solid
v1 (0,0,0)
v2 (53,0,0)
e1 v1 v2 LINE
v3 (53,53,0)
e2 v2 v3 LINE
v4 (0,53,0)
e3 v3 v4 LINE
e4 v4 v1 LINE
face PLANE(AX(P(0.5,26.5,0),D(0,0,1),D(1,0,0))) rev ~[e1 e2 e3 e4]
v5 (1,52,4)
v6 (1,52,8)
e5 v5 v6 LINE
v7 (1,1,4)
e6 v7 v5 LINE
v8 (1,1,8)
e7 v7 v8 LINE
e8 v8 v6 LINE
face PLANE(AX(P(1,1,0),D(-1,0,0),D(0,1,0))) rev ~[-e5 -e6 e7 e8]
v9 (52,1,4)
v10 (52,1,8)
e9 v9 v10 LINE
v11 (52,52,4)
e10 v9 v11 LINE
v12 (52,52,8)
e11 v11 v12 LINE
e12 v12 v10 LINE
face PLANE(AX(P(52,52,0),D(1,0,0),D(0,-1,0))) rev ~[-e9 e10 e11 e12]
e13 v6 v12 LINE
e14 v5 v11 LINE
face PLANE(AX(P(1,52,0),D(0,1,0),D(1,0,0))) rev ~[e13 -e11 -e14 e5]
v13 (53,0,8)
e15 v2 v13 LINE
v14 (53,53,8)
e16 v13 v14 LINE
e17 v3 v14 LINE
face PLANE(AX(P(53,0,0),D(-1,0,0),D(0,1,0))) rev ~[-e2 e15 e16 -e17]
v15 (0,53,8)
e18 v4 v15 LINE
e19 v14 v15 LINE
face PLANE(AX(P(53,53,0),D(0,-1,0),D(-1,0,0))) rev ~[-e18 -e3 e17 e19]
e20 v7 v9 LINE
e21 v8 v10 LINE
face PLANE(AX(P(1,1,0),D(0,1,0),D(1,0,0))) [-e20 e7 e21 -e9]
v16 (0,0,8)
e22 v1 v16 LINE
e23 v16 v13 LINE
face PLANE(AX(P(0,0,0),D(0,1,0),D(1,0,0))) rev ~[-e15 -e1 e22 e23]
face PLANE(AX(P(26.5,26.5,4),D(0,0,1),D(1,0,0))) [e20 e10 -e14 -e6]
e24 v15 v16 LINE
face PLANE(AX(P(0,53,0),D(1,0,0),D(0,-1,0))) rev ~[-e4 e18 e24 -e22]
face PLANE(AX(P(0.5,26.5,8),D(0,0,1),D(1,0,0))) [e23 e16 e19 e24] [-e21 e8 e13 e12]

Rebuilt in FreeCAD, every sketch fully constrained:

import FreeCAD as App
import Part
import Sketcher

V = App.Vector

doc = App.newDocument("Part")
body = doc.addObject("PartDesign::Body", "Body")

# Sketch on XY plane
sketch1 = body.newObject("Sketcher::SketchObject", "Sketch")
sketch1.AttachmentSupport = (doc.getObject("XY_Plane"), [""])
sketch1.MapMode = "FlatFace"
sketch1.addGeometry(Part.LineSegment(V(1, 52, 0), V(1, 1, 0)), False)
sketch1.addGeometry(Part.LineSegment(V(1, 1, 0), V(52, 1, 0)), False)
sketch1.addGeometry(Part.LineSegment(V(52, 1, 0), V(52, 52, 0)), False)
sketch1.addGeometry(Part.LineSegment(V(52, 52, 0), V(1, 52, 0)), False)
sketch1.addConstraint(Sketcher.Constraint("Coincident", 0, 2, 1, 1))
sketch1.addConstraint(Sketcher.Constraint("Coincident", 1, 2, 2, 1))
sketch1.addConstraint(Sketcher.Constraint("Coincident", 2, 2, 3, 1))
sketch1.addConstraint(Sketcher.Constraint("Coincident", 3, 2, 0, 1))
sketch1.addConstraint(Sketcher.Constraint("Vertical", 0))
sketch1.addConstraint(Sketcher.Constraint("Horizontal", 1))
sketch1.addConstraint(Sketcher.Constraint("Vertical", 2))
sketch1.addConstraint(Sketcher.Constraint("Horizontal", 3))
sketch1.addConstraint(Sketcher.Constraint("Equal", 3, 0))
sketch1.addConstraint(Sketcher.Constraint("DistanceX", 1, 1, 1, 2, 51.0))
sketch1.addConstraint(Sketcher.Constraint("DistanceX", -1, 1, 0, 2, 1.0))
sketch1.addConstraint(Sketcher.Constraint("DistanceY", -1, 1, 0, 2, 1.0))
pad1 = body.newObject("PartDesign::Pad", "Pad")
pad1.Profile = sketch1
pad1.Length = 4

# Sketch on XY plane
sketch2 = body.newObject("Sketcher::SketchObject", "Sketch001")
sketch2.AttachmentSupport = (doc.getObject("XY_Plane"), [""])
sketch2.MapMode = "FlatFace"
sketch2.addGeometry(Part.LineSegment(V(0, 53, 0), V(0, 0, 0)), False)
sketch2.addGeometry(Part.LineSegment(V(0, 0, 0), V(53, 0, 0)), False)
sketch2.addGeometry(Part.LineSegment(V(53, 0, 0), V(53, 53, 0)), False)
sketch2.addGeometry(Part.LineSegment(V(53, 53, 0), V(0, 53, 0)), False)
sketch2.addGeometry(Part.LineSegment(V(52, 1, 0), V(1, 1, 0)), False)
sketch2.addGeometry(Part.LineSegment(V(1, 1, 0), V(1, 52, 0)), False)
sketch2.addGeometry(Part.LineSegment(V(1, 52, 0), V(52, 52, 0)), False)
sketch2.addGeometry(Part.LineSegment(V(52, 52, 0), V(52, 1, 0)), False)
sketch2.addConstraint(Sketcher.Constraint("Coincident", 0, 2, 1, 1))
sketch2.addConstraint(Sketcher.Constraint("Coincident", 1, 2, 2, 1))
sketch2.addConstraint(Sketcher.Constraint("Coincident", 2, 2, 3, 1))
sketch2.addConstraint(Sketcher.Constraint("Coincident", 3, 2, 0, 1))
sketch2.addConstraint(Sketcher.Constraint("Coincident", 4, 2, 5, 1))
sketch2.addConstraint(Sketcher.Constraint("Coincident", 5, 2, 6, 1))
sketch2.addConstraint(Sketcher.Constraint("Coincident", 6, 2, 7, 1))
sketch2.addConstraint(Sketcher.Constraint("Coincident", 7, 2, 4, 1))
sketch2.addConstraint(Sketcher.Constraint("Vertical", 0))
sketch2.addConstraint(Sketcher.Constraint("Horizontal", 1))
sketch2.addConstraint(Sketcher.Constraint("Vertical", 2))
sketch2.addConstraint(Sketcher.Constraint("Horizontal", 3))
sketch2.addConstraint(Sketcher.Constraint("Horizontal", 4))
sketch2.addConstraint(Sketcher.Constraint("Vertical", 5))
sketch2.addConstraint(Sketcher.Constraint("Horizontal", 6))
sketch2.addConstraint(Sketcher.Constraint("Vertical", 7))
sketch2.addConstraint(Sketcher.Constraint("Coincident", 0, 2, -1, 1))
sketch2.addConstraint(Sketcher.Constraint("Equal", 3, 0))
sketch2.addConstraint(Sketcher.Constraint("Equal", 6, 5))
sketch2.addConstraint(Sketcher.Constraint("DistanceX", 1, 1, 1, 2, 53.0))
sketch2.addConstraint(Sketcher.Constraint("DistanceX", 4, 2, 4, 1, 51.0))
sketch2.addConstraint(Sketcher.Constraint("DistanceX", -1, 1, 4, 2, 1.0))
sketch2.addConstraint(Sketcher.Constraint("DistanceY", -1, 1, 4, 2, 1.0))
pad2 = body.newObject("PartDesign::Pad", "Pad001")
pad2.Profile = sketch2
pad2.Length = 8

doc.recompute()
